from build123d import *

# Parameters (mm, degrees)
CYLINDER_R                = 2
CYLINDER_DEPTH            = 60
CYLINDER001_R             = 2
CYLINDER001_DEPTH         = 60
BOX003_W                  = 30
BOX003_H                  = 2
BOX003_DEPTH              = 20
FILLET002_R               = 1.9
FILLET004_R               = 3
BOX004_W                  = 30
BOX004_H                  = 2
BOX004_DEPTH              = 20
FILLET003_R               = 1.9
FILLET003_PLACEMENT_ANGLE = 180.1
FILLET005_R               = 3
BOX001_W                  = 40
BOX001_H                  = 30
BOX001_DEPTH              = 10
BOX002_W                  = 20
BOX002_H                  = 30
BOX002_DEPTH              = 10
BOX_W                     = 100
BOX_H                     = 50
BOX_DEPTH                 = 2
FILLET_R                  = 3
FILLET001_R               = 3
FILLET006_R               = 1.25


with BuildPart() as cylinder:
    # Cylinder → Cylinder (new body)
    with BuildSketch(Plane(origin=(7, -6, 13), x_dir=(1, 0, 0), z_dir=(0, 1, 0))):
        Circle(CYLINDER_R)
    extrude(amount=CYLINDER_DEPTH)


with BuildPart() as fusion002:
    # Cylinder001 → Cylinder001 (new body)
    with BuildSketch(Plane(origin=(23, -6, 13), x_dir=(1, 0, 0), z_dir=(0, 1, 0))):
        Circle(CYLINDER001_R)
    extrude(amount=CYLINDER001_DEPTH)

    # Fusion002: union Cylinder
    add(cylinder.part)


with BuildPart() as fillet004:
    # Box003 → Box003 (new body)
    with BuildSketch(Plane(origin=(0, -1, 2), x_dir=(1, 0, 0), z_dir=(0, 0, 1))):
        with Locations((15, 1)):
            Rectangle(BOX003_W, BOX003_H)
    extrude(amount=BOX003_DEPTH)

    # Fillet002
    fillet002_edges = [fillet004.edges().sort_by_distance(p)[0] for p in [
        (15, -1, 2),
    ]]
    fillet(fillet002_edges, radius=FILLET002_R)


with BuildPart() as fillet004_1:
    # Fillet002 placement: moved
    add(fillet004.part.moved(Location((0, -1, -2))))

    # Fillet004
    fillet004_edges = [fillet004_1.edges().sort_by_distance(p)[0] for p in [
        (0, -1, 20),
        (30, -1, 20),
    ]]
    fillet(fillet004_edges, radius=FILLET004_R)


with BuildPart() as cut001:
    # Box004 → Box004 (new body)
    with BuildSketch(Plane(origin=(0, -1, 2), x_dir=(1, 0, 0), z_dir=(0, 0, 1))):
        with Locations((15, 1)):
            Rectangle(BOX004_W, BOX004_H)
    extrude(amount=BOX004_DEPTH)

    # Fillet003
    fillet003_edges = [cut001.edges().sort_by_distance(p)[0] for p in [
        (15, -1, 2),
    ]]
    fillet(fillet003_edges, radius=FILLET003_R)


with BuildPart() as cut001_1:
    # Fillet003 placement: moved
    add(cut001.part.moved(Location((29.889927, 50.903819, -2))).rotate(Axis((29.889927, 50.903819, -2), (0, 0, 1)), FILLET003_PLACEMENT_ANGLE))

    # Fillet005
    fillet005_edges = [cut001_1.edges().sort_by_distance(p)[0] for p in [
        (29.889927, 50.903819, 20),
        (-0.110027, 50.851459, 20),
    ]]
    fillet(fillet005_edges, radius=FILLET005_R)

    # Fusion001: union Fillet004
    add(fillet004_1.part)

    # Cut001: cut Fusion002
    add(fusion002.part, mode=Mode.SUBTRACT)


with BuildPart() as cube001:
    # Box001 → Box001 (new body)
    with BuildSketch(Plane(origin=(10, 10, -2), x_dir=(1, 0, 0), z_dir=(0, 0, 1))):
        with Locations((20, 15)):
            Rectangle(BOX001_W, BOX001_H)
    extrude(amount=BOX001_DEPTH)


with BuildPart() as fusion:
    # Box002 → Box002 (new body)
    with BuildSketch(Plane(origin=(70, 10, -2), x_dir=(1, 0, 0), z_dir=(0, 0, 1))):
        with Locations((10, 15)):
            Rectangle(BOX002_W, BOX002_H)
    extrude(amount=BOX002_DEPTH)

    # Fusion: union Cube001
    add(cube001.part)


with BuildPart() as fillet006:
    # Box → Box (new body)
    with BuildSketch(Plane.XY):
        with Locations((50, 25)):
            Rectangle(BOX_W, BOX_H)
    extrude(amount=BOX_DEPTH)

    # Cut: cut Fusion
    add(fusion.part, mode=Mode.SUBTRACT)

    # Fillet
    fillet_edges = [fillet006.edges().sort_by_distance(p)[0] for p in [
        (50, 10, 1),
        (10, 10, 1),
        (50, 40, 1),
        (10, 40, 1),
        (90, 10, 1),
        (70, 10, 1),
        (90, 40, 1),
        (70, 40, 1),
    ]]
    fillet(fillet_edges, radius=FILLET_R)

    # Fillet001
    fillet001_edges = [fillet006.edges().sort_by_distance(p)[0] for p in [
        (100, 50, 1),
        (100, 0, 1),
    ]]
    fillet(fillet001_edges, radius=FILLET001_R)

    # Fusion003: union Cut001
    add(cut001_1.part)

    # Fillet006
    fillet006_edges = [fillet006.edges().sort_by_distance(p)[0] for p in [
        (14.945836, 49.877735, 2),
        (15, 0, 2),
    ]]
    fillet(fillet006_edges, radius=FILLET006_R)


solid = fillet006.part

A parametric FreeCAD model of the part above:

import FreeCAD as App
import Part
import Sketcher
from FreeCAD import Vector


def edges_at(feature, points):
    """Names of the edges that pass closest to the given points."""
    edges = feature.Shape.Edges
    near = lambda p: min(range(len(edges)), key=lambda i: edges[i].distToShape(Part.Vertex(*p))[0])
    return sorted({f"Edge{near(p) + 1}" for p in points})

doc = App.newDocument("Part")
params = doc.addObject("Spreadsheet::Sheet", "Params")
for row, (alias, value) in enumerate([
    ("sketch1_diameter", "4 mm"),
    ("pad1_length", "60 mm"),
    ("sketch2_diameter", "4 mm"),
    ("pad2_length", "60 mm"),
    ("sketch3_width", "30 mm"),
    ("sketch3_height", "2 mm"),
    ("pad3_length", "20 mm"),
    ("fillet_radius", "1.9 mm"),
    ("fillet2_radius", "3 mm"),
    ("sketch4_width", "30 mm"),
    ("sketch4_height", "2 mm"),
    ("pad4_length", "20 mm"),
    ("fillet3_radius", "1.9 mm"),
    ("fillet4_radius", "3 mm"),
    ("sketch5_width", "40 mm"),
    ("sketch5_height", "30 mm"),
    ("pad5_length", "10 mm"),
    ("sketch6_width", "20 mm"),
    ("sketch6_height", "30 mm"),
    ("pad6_length", "10 mm"),
    ("sketch7_width", "100 mm"),
    ("sketch7_height", "50 mm"),
    ("pad7_length", "2 mm"),
    ("fillet5_radius", "3 mm"),
    ("fillet6_radius", "3 mm"),
    ("fillet7_radius", "1.25 mm"),
], start=1):
    params.set(f"A{row}", alias)
    params.set(f"B{row}", "=" + value)
    params.setAlias(f"B{row}", alias)

body = doc.addObject("PartDesign::Body", "Body")

# Sketch on XZ plane
sketch1 = body.newObject("Sketcher::SketchObject", "Sketch")
sketch1.AttachmentSupport = (doc.getObject("XZ_Plane"), [""])
sketch1.MapMode = "FlatFace"
sketch1.AttachmentOffset = App.Placement(Vector(0, 0, 6), App.Rotation())
sketch1.addGeometry(Part.Circle(Vector(7, 13, 0), Vector(0, 0, 1), 2), False)
sketch1.addConstraint(Sketcher.Constraint("Diameter", 0, 4.0))
sketch1.addConstraint(Sketcher.Constraint("DistanceX", -1, 1, 0, 3, 7.0))
sketch1.addConstraint(Sketcher.Constraint("DistanceY", -1, 1, 0, 3, 13.0))
sketch1.setExpression("Constraints[0]", "Params.sketch1_diameter")
pad1 = body.newObject("PartDesign::Pad", "Pad")
pad1.Profile = sketch1
pad1.setExpression("Length", "Params.pad1_length")
pad1.Reversed = True
body2 = doc.addObject("PartDesign::Body", "Body001")
body2.AllowCompound = True

# Sketch on XZ plane
sketch2 = body2.newObject("Sketcher::SketchObject", "Sketch001")
sketch2.AttachmentSupport = (doc.getObject("XZ_Plane001"), [""])
sketch2.MapMode = "FlatFace"
sketch2.AttachmentOffset = App.Placement(Vector(0, 0, 6), App.Rotation())
sketch2.addGeometry(Part.Circle(Vector(23, 13, 0), Vector(0, 0, 1), 2), False)
sketch2.addConstraint(Sketcher.Constraint("Diameter", 0, 4.0))
sketch2.addConstraint(Sketcher.Constraint("DistanceX", -1, 1, 0, 3, 23.0))
sketch2.addConstraint(Sketcher.Constraint("DistanceY", -1, 1, 0, 3, 13.0))
sketch2.setExpression("Constraints[0]", "Params.sketch2_diameter")
pad2 = body2.newObject("PartDesign::Pad", "Pad001")
pad2.Profile = sketch2
pad2.setExpression("Length", "Params.pad2_length")
pad2.Reversed = True
doc.recompute()

boolean = body2.newObject("PartDesign::Boolean", "Boolean")
boolean.Type = "Fuse"
boolean.addObjects([body])
body3 = doc.addObject("PartDesign::Body", "Body002")

# Sketch on XY plane
sketch3 = body3.newObject("Sketcher::SketchObject", "Sketch002")
sketch3.AttachmentSupport = (doc.getObject("XY_Plane002"), [""])
sketch3.MapMode = "FlatFace"
sketch3.AttachmentOffset = App.Placement(Vector(0, 0, 2), App.Rotation())
sketch3.addGeometry(Part.LineSegment(Vector(0, 1, 0), Vector(0, -1, 0)), False)
sketch3.addGeometry(Part.LineSegment(Vector(0, -1, 0), Vector(30, -1, 0)), False)
sketch3.addGeometry(Part.LineSegment(Vector(30, -1, 0), Vector(30, 1, 0)), False)
sketch3.addGeometry(Part.LineSegment(Vector(30, 1, 0), Vector(0, 1, 0)), False)
sketch3.addConstraint(Sketcher.Constraint("Coincident", 0, 2, 1, 1))
sketch3.addConstraint(Sketcher.Constraint("Coincident", 1, 2, 2, 1))
sketch3.addConstraint(Sketcher.Constraint("Coincident", 2, 2, 3, 1))
sketch3.addConstraint(Sketcher.Constraint("Coincident", 3, 2, 0, 1))
sketch3.addConstraint(Sketcher.Constraint("Vertical", 0))
sketch3.addConstraint(Sketcher.Constraint("Horizontal", 1))
sketch3.addConstraint(Sketcher.Constraint("Vertical", 2))
sketch3.addConstraint(Sketcher.Constraint("Horizontal", 3))
sketch3.addConstraint(Sketcher.Constraint("Symmetric", 0, 2, 3, 2, -1, 1))
sketch3.addConstraint(Sketcher.Constraint("DistanceX", 1, 1, 1, 2, 30.0))
sketch3.addConstraint(Sketcher.Constraint("DistanceY", 0, 2, 0, 1, 2.0))
sketch3.setExpression("Constraints[9]", "Params.sketch3_width")
sketch3.setExpression("Constraints[10]", "Params.sketch3_height")
pad3 = body3.newObject("PartDesign::Pad", "Pad002")
pad3.Profile = sketch3
pad3.setExpression("Length", "Params.pad3_length")
doc.recompute()

fillet = body3.newObject("PartDesign::Fillet", "Fillet")
fillet.Base = (pad3, edges_at(pad3, [(15, -1, 2)]))
fillet.setExpression("Radius", "Params.fillet_radius")
body4 = doc.addObject("PartDesign::Body", "Body003")
doc.recompute()

body3.Placement = App.Placement(Vector(0, -1, -2), App.Rotation(Vector(0, 0, 1), 0))
boolean2 = body4.newObject("PartDesign::Boolean", "Boolean001")
boolean2.Type = "Fuse"
boolean2.addObjects([body3])
doc.recompute()

fillet2 = body4.newObject("PartDesign::Fillet", "Fillet001")
fillet2.Base = (boolean2, edges_at(boolean2, [(0, -1, 20), (30, -1, 20)]))
fillet2.setExpression("Radius", "Params.fillet2_radius")
body5 = doc.addObject("PartDesign::Body", "Body004")

# Sketch on XY plane
sketch4 = body5.newObject("Sketcher::SketchObject", "Sketch003")
sketch4.AttachmentSupport = (doc.getObject("XY_Plane004"), [""])
sketch4.MapMode = "FlatFace"
sketch4.AttachmentOffset = App.Placement(Vector(0, 0, 2), App.Rotation())
sketch4.addGeometry(Part.LineSegment(Vector(0, 1, 0), Vector(0, -1, 0)), False)
sketch4.addGeometry(Part.LineSegment(Vector(0, -1, 0), Vector(30, -1, 0)), False)
sketch4.addGeometry(Part.LineSegment(Vector(30, -1, 0), Vector(30, 1, 0)), False)
sketch4.addGeometry(Part.LineSegment(Vector(30, 1, 0), Vector(0, 1, 0)), False)
sketch4.addConstraint(Sketcher.Constraint("Coincident", 0, 2, 1, 1))
sketch4.addConstraint(Sketcher.Constraint("Coincident", 1, 2, 2, 1))
sketch4.addConstraint(Sketcher.Constraint("Coincident", 2, 2, 3, 1))
sketch4.addConstraint(Sketcher.Constraint("Coincident", 3, 2, 0, 1))
sketch4.addConstraint(Sketcher.Constraint("Vertical", 0))
sketch4.addConstraint(Sketcher.Constraint("Horizontal", 1))
sketch4.addConstraint(Sketcher.Constraint("Vertical", 2))
sketch4.addConstraint(Sketcher.Constraint("Horizontal", 3))
sketch4.addConstraint(Sketcher.Constraint("Symmetric", 0, 2, 3, 2, -1, 1))
sketch4.addConstraint(Sketcher.Constraint("DistanceX", 1, 1, 1, 2, 30.0))
sketch4.addConstraint(Sketcher.Constraint("DistanceY", 0, 2, 0, 1, 2.0))
sketch4.setExpression("Constraints[9]", "Params.sketch4_width")
sketch4.setExpression("Constraints[10]", "Params.sketch4_height")
pad4 = body5.newObject("PartDesign::Pad", "Pad003")
pad4.Profile = sketch4
pad4.setExpression("Length", "Params.pad4_length")
doc.recompute()

fillet3 = body5.newObject("PartDesign::Fillet", "Fillet002")
fillet3.Base = (pad4, edges_at(pad4, [(15, -1, 2)]))
fillet3.setExpression("Radius", "Params.fillet3_radius")
body6 = doc.addObject("PartDesign::Body", "Body005")
body6.AllowCompound = True
doc.recompute()

body5.Placement = App.Placement(Vector(29.889927, 50.903819, -2), App.Rotation(Vector(0, 0, 1), 180.1))
boolean3 = body6.newObject("PartDesign::Boolean", "Boolean002")
boolean3.Type = "Fuse"
boolean3.addObjects([body5])
doc.recompute()

fillet4 = body6.newObject("PartDesign::Fillet", "Fillet003")
fillet4.Base = (boolean3, edges_at(boolean3, [(29.89, 50.904, 20), (-0.11, 50.851, 20)]))
fillet4.setExpression("Radius", "Params.fillet4_radius")
doc.recompute()

boolean4 = body6.newObject("PartDesign::Boolean", "Boolean003")
boolean4.Type = "Fuse"
boolean4.addObjects([body4])
doc.recompute()

boolean5 = body6.newObject("PartDesign::Boolean", "Boolean004")
boolean5.Type = "Cut"
boolean5.addObjects([body2])
body7 = doc.addObject("PartDesign::Body", "Body006")

# Sketch on XY plane
sketch5 = body7.newObject("Sketcher::SketchObject", "Sketch004")
sketch5.AttachmentSupport = (doc.getObject("XY_Plane006"), [""])
sketch5.MapMode = "FlatFace"
sketch5.AttachmentOffset = App.Placement(Vector(0, 0, -2), App.Rotation())
sketch5.addGeometry(Part.LineSegment(Vector(10, 40, 0), Vector(10, 10, 0)), False)
sketch5.addGeometry(Part.LineSegment(Vector(10, 10, 0), Vector(50, 10, 0)), False)
sketch5.addGeometry(Part.LineSegment(Vector(50, 10, 0), Vector(50, 40, 0)), False)
sketch5.addGeometry(Part.LineSegment(Vector(50, 40, 0), Vector(10, 40, 0)), False)
sketch5.addConstraint(Sketcher.Constraint("Coincident", 0, 2, 1, 1))
sketch5.addConstraint(Sketcher.Constraint("Coincident", 1, 2, 2, 1))
sketch5.addConstraint(Sketcher.Constraint("Coincident", 2, 2, 3, 1))
sketch5.addConstraint(Sketcher.Constraint("Coincident", 3, 2, 0, 1))
sketch5.addConstraint(Sketcher.Constraint("Vertical", 0))
sketch5.addConstraint(Sketcher.Constraint("Horizontal", 1))
sketch5.addConstraint(Sketcher.Constraint("Vertical", 2))
sketch5.addConstraint(Sketcher.Constraint("Horizontal", 3))
sketch5.addConstraint(Sketcher.Constraint("DistanceX", 1, 1, 1, 2, 40.0))
sketch5.addConstraint(Sketcher.Constraint("DistanceY", 0, 2, 0, 1, 30.0))
sketch5.addConstraint(Sketcher.Constraint("DistanceX", -1, 1, 0, 2, 10.0))
sketch5.addConstraint(Sketcher.Constraint("DistanceY", -1, 1, 0, 2, 10.0))
sketch5.setExpression("Constraints[8]", "Params.sketch5_width")
sketch5.setExpression("Constraints[9]", "Params.sketch5_height")
pad5 = body7.newObject("PartDesign::Pad", "Pad004")
pad5.Profile = sketch5
pad5.setExpression("Length", "Params.pad5_length")
body8 = doc.addObject("PartDesign::Body", "Body007")
body8.AllowCompound = True

# Sketch on XY plane
sketch6 = body8.newObject("Sketcher::SketchObject", "Sketch005")
sketch6.AttachmentSupport = (doc.getObject("XY_Plane007"), [""])
sketch6.MapMode = "FlatFace"
sketch6.AttachmentOffset = App.Placement(Vector(0, 0, -2), App.Rotation())
sketch6.addGeometry(Part.LineSegment(Vector(70, 40, 0), Vector(70, 10, 0)), False)
sketch6.addGeometry(Part.LineSegment(Vector(70, 10, 0), Vector(90, 10, 0)), False)
sketch6.addGeometry(Part.LineSegment(Vector(90, 10, 0), Vector(90, 40, 0)), False)
sketch6.addGeometry(Part.LineSegment(Vector(90, 40, 0), Vector(70, 40, 0)), False)
sketch6.addConstraint(Sketcher.Constraint("Coincident", 0, 2, 1, 1))
sketch6.addConstraint(Sketcher.Constraint("Coincident", 1, 2, 2, 1))
sketch6.addConstraint(Sketcher.Constraint("Coincident", 2, 2, 3, 1))
sketch6.addConstraint(Sketcher.Constraint("Coincident", 3, 2, 0, 1))
sketch6.addConstraint(Sketcher.Constraint("Vertical", 0))
sketch6.addConstraint(Sketcher.Constraint("Horizontal", 1))
sketch6.addConstraint(Sketcher.Constraint("Vertical", 2))
sketch6.addConstraint(Sketcher.Constraint("Horizontal", 3))
sketch6.addConstraint(Sketcher.Constraint("DistanceX", 1, 1, 1, 2, 20.0))
sketch6.addConstraint(Sketcher.Constraint("DistanceY", 0, 2, 0, 1, 30.0))
sketch6.addConstraint(Sketcher.Constraint("DistanceX", -1, 1, 0, 2, 70.0))
sketch6.addConstraint(Sketcher.Constraint("DistanceY", -1, 1, 0, 2, 10.0))
sketch6.setExpression("Constraints[8]", "Params.sketch6_width")
sketch6.setExpression("Constraints[9]", "Params.sketch6_height")
pad6 = body8.newObject("PartDesign::Pad", "Pad005")
pad6.Profile = sketch6
pad6.setExpression("Length", "Params.pad6_length")
doc.recompute()

boolean6 = body8.newObject("PartDesign::Boolean", "Boolean005")
boolean6.Type = "Fuse"
boolean6.addObjects([body7])
body9 = doc.addObject("PartDesign::Body", "Body008")

# Sketch on XY plane
sketch7 = body9.newObject("Sketcher::SketchObject", "Sketch006")
sketch7.AttachmentSupport = (doc.getObject("XY_Plane008"), [""])
sketch7.MapMode = "FlatFace"
sketch7.addGeometry(Part.LineSegment(Vector(0, 50, 0), Vector(0, 0, 0)), False)
sketch7.addGeometry(Part.LineSegment(Vector(0, 0, 0), Vector(100, 0, 0)), False)
sketch7.addGeometry(Part.LineSegment(Vector(100, 0, 0), Vector(100, 50, 0)), False)
sketch7.addGeometry(Part.LineSegment(Vector(100, 50, 0), Vector(0, 50, 0)), False)
sketch7.addConstraint(Sketcher.Constraint("Coincident", 0, 2, 1, 1))
sketch7.addConstraint(Sketcher.Constraint("Coincident", 1, 2, 2, 1))
sketch7.addConstraint(Sketcher.Constraint("Coincident", 2, 2, 3, 1))
sketch7.addConstraint(Sketcher.Constraint("Coincident", 3, 2, 0, 1))
sketch7.addConstraint(Sketcher.Constraint("Vertical", 0))
sketch7.addConstraint(Sketcher.Constraint("Horizontal", 1))
sketch7.addConstraint(Sketcher.Constraint("Vertical", 2))
sketch7.addConstraint(Sketcher.Constraint("Horizontal", 3))
sketch7.addConstraint(Sketcher.Constraint("Coincident", 0, 2, -1, 1))
sketch7.addConstraint(Sketcher.Constraint("DistanceX", 1, 1, 1, 2, 100.0))
sketch7.addConstraint(Sketcher.Constraint("DistanceY", 0, 2, 0, 1, 50.0))
sketch7.setExpression("Constraints[9]", "Params.sketch7_width")
sketch7.setExpression("Constraints[10]", "Params.sketch7_height")
pad7 = body9.newObject("PartDesign::Pad", "Pad006")
pad7.Profile = sketch7
pad7.setExpression("Length", "Params.pad7_length")
doc.recompute()

boolean7 = body9.newObject("PartDesign::Boolean", "Boolean006")
boolean7.Type = "Cut"
boolean7.addObjects([body8])
doc.recompute()

fillet5 = body9.newObject("PartDesign::Fillet", "Fillet004")
fillet5.Base = (boolean7, edges_at(boolean7, [
    (50, 10, 1),
    (10, 10, 1),
    (50, 40, 1),
    (10, 40, 1),
    (90, 10, 1),
    (70, 10, 1),
    (90, 40, 1),
    (70, 40, 1),
]))
fillet5.setExpression("Radius", "Params.fillet5_radius")
doc.recompute()

fillet6 = body9.newObject("PartDesign::Fillet", "Fillet005")
fillet6.Base = (fillet5, edges_at(fillet5, [(100, 50, 1), (100, 0, 1)]))
fillet6.setExpression("Radius", "Params.fillet6_radius")
doc.recompute()

boolean8 = body9.newObject("PartDesign::Boolean", "Boolean007")
boolean8.Type = "Fuse"
boolean8.addObjects([body6])
doc.recompute()

fillet7 = body9.newObject("PartDesign::Fillet", "Fillet006")
fillet7.Base = (boolean8, edges_at(boolean8, [(14.946, 49.878, 2), (15, 0, 2)]))
fillet7.setExpression("Radius", "Params.fillet7_radius")

doc.recompute()
